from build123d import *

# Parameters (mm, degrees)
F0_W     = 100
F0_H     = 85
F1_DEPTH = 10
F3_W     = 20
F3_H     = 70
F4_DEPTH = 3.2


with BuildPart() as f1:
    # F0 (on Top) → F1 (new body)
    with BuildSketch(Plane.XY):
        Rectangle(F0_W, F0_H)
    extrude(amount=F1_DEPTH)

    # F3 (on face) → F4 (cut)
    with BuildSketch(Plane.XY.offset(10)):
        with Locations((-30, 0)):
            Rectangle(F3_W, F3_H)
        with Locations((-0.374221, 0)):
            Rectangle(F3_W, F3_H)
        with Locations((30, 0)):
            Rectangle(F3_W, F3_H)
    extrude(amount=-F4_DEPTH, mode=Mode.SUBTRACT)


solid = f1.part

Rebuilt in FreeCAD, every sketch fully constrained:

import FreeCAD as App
import Part
import Sketcher
from FreeCAD import Vector
Q = App.Units.Quantity


def add_polygon(sketch, points):
    """Adds a closed chain of lines whose ends are joined by coincident constraints."""
    first, n = sketch.GeometryCount, len(points)
    for a, b in zip(points, points[1:] + points[:1]):
        sketch.addGeometry(Part.LineSegment(App.Vector(*a, 0), App.Vector(*b, 0)), False)
    for i in range(n):
        sketch.addConstraint(Sketcher.Constraint("Coincident", first + i, 2, first + (i + 1) % n, 1))

doc = App.newDocument("Part")
body = doc.addObject("PartDesign::Body", "Body")

# Sketch on XY plane
sketch1 = doc.addObject("Sketcher::SketchObject", "Sketch")
body.addObject(sketch1)
sketch1.AttachmentSupport = (doc.XY_Plane, [""])
sketch1.MapMode = "FlatFace"
add_polygon(sketch1, [(-50, 42.5), (-50, -42.5), (50, -42.5), (50, 42.5)])  # lines 0-3
sketch1.addConstraint([
    Sketcher.Constraint("Vertical", 0),
    Sketcher.Constraint("Horizontal", 1),
    Sketcher.Constraint("Vertical", 2),
    Sketcher.Constraint("Horizontal", 3),
    Sketcher.Constraint("Symmetric", 0, 2, 2, 2, -1, 1),
    Sketcher.Constraint("DistanceX", 1, 1, 1, 2, Q("100 mm")),
    Sketcher.Constraint("DistanceY", 0, 2, 0, 1, Q("85 mm")),
])
pad1 = doc.addObject("PartDesign::Pad", "Pad")
body.addObject(pad1)
pad1.Profile = sketch1
pad1.Length = 10

# Sketch on XY plane
sketch2 = doc.addObject("Sketcher::SketchObject", "Sketch001")
body.addObject(sketch2)
sketch2.AttachmentSupport = (doc.XY_Plane, [""])
sketch2.MapMode = "FlatFace"
sketch2.AttachmentOffset = App.Placement(Vector(0, 0, 10), App.Rotation())
add_polygon(sketch2, [(-40, 35), (-40, -35), (-20, -35), (-20, 35)])  # lines 0-3
add_polygon(sketch2, [(-10.374221, 35), (-10.374221, -35), (9.625779, -35), (9.625779, 35)])  # lines 4-7
add_polygon(sketch2, [(20, 35), (20, -35), (40, -35), (40, 35)])  # lines 8-11
sketch2.addConstraint([
    Sketcher.Constraint("Vertical", 0),
    Sketcher.Constraint("Horizontal", 1),
    Sketcher.Constraint("Vertical", 2),
    Sketcher.Constraint("Horizontal", 3),
    Sketcher.Constraint("Vertical", 4),
    Sketcher.Constraint("Horizontal", 5),
    Sketcher.Constraint("Vertical", 6),
    Sketcher.Constraint("Horizontal", 7),
    Sketcher.Constraint("Vertical", 8),
    Sketcher.Constraint("Horizontal", 9),
    Sketcher.Constraint("Vertical", 10),
    Sketcher.Constraint("Horizontal", 11),
    Sketcher.Constraint("Symmetric", 2, 2, 8, 2, -1, 1),
    Sketcher.Constraint("Symmetric", 0, 2, 10, 2, -1, 1),
    Sketcher.Constraint("Horizontal", 1, 2, 4, 2),
    Sketcher.Constraint("Horizontal", 3, 2, 6, 2),
    Sketcher.Constraint("Horizontal", 5, 2, 8, 2),
    Sketcher.Constraint("Equal", 3, 5),
    Sketcher.Constraint("DistanceX", 1, 1, 1, 2, Q("20 mm")),
    Sketcher.Constraint("DistanceY", 0, 2, 0, 1, Q("70 mm")),
    Sketcher.Constraint("DistanceX", 0, 2, -1, 1, Q("40 mm")),
    Sketcher.Constraint("DistanceX", 4, 2, -1, 1, Q("10.374221 mm")),
])
pocket1 = doc.addObject("PartDesign::Pocket", "Pocket")
body.addObject(pocket1)
pocket1.Profile = sketch2
pocket1.Length = 3.2

doc.recompute()
